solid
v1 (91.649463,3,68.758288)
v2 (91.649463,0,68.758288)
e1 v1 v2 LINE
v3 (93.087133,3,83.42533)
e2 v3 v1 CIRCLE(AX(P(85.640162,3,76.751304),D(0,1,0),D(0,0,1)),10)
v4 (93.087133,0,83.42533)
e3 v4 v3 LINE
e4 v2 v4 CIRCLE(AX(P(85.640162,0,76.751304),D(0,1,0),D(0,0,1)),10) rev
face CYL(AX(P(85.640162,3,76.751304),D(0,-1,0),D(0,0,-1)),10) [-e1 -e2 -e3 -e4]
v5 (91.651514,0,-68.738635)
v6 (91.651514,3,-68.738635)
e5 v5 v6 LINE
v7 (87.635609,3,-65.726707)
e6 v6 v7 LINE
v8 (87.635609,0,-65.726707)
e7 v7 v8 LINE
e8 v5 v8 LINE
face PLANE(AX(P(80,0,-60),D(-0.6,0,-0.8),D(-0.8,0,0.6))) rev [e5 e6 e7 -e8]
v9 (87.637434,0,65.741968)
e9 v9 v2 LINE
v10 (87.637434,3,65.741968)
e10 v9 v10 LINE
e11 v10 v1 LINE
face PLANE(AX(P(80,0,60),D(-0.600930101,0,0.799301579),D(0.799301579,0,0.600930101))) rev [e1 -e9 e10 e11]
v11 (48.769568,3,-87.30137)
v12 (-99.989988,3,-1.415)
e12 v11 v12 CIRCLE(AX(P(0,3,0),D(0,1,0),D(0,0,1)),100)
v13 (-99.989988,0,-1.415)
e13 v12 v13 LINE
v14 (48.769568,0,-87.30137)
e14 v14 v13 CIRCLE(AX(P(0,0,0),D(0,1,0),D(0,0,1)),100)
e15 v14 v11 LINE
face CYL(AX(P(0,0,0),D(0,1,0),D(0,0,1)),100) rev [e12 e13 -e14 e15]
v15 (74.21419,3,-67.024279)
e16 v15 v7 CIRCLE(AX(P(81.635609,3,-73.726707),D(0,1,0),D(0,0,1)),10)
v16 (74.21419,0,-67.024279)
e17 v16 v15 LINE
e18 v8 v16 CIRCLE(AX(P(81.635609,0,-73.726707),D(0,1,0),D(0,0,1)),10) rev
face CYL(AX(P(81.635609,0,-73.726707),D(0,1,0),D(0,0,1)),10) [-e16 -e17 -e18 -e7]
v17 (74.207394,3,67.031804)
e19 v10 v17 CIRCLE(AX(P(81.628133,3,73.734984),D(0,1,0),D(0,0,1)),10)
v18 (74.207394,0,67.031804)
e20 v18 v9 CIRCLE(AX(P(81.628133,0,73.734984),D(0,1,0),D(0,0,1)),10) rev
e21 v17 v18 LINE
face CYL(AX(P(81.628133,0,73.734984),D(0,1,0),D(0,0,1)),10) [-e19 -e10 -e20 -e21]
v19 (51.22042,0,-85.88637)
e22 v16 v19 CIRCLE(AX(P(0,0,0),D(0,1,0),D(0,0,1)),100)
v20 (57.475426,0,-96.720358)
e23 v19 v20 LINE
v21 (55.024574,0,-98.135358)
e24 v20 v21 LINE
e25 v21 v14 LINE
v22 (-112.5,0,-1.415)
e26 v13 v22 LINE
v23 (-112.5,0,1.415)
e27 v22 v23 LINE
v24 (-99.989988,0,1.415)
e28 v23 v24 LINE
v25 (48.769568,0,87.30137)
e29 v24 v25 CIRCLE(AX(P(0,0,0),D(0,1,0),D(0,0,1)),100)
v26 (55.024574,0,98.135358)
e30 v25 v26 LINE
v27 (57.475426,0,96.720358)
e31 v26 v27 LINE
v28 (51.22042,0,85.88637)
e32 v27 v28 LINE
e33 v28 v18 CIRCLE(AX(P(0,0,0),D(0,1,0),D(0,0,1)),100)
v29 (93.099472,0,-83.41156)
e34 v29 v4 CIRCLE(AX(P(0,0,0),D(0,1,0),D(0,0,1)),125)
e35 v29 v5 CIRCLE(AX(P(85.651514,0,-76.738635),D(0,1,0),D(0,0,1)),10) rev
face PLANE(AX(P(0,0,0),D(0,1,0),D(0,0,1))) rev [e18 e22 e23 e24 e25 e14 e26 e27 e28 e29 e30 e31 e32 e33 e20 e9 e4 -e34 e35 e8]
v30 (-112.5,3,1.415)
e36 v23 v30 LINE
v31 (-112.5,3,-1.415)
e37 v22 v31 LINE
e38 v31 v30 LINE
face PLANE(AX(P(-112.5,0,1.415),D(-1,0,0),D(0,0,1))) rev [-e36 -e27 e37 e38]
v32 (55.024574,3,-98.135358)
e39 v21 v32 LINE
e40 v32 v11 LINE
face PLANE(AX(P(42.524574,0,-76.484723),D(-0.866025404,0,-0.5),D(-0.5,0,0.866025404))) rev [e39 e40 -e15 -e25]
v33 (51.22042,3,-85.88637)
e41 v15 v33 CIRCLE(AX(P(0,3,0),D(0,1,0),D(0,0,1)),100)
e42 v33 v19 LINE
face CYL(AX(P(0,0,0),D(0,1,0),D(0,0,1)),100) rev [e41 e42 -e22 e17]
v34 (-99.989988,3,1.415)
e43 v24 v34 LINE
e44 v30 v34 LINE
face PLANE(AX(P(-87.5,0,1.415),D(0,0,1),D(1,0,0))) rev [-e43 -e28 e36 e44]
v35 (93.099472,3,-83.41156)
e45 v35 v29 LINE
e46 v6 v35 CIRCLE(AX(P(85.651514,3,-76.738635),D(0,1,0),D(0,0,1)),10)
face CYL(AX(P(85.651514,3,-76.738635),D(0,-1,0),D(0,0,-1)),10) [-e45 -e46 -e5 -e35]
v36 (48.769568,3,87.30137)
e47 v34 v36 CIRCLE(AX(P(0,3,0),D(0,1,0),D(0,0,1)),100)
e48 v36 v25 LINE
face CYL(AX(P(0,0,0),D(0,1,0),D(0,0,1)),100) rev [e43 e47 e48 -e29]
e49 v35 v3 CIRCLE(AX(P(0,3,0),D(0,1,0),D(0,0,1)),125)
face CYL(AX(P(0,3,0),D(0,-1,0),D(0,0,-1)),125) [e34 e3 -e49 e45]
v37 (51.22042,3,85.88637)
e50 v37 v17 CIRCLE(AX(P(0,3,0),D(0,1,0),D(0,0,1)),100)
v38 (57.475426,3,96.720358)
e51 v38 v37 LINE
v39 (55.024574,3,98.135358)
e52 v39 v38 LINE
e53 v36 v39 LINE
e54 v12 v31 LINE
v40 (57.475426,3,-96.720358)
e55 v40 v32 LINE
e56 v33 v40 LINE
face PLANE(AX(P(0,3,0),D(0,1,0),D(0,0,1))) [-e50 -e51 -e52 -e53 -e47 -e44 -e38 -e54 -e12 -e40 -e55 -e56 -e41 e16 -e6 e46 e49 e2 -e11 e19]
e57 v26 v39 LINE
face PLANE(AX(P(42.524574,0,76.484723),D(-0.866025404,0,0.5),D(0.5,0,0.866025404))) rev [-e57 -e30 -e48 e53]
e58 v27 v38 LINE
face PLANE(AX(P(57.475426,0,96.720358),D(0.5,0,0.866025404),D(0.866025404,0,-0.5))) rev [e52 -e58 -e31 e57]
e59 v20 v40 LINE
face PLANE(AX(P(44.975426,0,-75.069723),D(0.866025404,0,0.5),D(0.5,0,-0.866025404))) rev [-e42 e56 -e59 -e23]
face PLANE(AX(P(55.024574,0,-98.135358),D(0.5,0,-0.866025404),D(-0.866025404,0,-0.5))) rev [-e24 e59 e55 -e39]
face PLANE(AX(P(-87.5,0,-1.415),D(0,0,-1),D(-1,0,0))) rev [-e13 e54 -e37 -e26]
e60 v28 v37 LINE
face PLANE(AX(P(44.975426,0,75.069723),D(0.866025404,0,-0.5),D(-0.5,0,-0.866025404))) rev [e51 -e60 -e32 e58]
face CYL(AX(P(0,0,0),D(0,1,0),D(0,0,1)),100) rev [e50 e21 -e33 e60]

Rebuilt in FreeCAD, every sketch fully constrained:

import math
import FreeCAD as App
import Part
import Sketcher

V = App.Vector
Q = App.Units.Quantity


def edges_at(feature, points):
    """Names of the edges that pass closest to the given points."""
    edges = feature.Shape.Edges
    near = lambda p: min(range(len(edges)), key=lambda i: edges[i].distToShape(Part.Vertex(*p))[0])
    return sorted({f"Edge{near(p) + 1}" for p in points})


def add_polygon(sketch, points):
    """Adds a closed chain of lines whose ends are joined by coincident constraints."""
    first, n = sketch.GeometryCount, len(points)
    for a, b in zip(points, points[1:] + points[:1]):
        sketch.addGeometry(Part.LineSegment(App.Vector(*a, 0), App.Vector(*b, 0)), False)
    for i in range(n):
        sketch.addConstraint(Sketcher.Constraint("Coincident", first + i, 2, first + (i + 1) % n, 1))

doc = App.newDocument("Part")
params = doc.addObject("Spreadsheet::Sheet", "Params")
for row, (alias, value) in enumerate([
    ("sketch1_diameter", "250 mm"),
    ("pad1_length", "3 mm"),
    ("sketch2_diameter", "200 mm"),
    ("pocket1_length", "3 mm"),
    ("sketch3_width", "25 mm"),
    ("sketch3_height", "2.83 mm"),
    ("pocket2_length", "3 mm"),
    ("sketch4_radius", "125 mm"),
    ("sketch4_radius2", "100 mm"),
    ("pocket3_length", "3 mm"),
    ("fillet_radius", "10 mm"),
], start=1):
    params.set(f"A{row}", alias)
    params.set(f"B{row}", "=" + value)
    params.setAlias(f"B{row}", alias)

body = doc.addObject("PartDesign::Body", "Body")

# Sketch on XZ plane
sketch1 = doc.addObject("Sketcher::SketchObject", "Sketch")
body.addObject(sketch1)
sketch1.AttachmentSupport = (doc.XZ_Plane, [""])
sketch1.MapMode = "FlatFace"
sketch1.addGeometry(Part.Circle(V(0, 0, 0), V(0, 0, 1), 125), False)
sketch1.addConstraint([
    Sketcher.Constraint("Coincident", 0, 3, -1, 1),
    Sketcher.Constraint("Diameter", 0, Q("250 mm")),
])
sketch1.setExpression("Constraints[1]", "Params.sketch1_diameter")
pad1 = doc.addObject("PartDesign::Pad", "Pad")
body.addObject(pad1)
pad1.Profile = sketch1
pad1.setExpression("Length", "Params.pad1_length")
pad1.Reversed = True

# Sketch on XZ plane
sketch2 = doc.addObject("Sketcher::SketchObject", "Sketch001")
body.addObject(sketch2)
sketch2.AttachmentSupport = (doc.XZ_Plane, [""])
sketch2.MapMode = "FlatFace"
sketch2.AttachmentOffset = App.Placement(V(0, 0, -3), App.Rotation())
sketch2.addGeometry(Part.Circle(V(0, 0, 0), V(0, 0, 1), 100), False)
sketch2.addConstraint([
    Sketcher.Constraint("Coincident", 0, 3, -1, 1),
    Sketcher.Constraint("Diameter", 0, Q("200 mm")),
])
sketch2.setExpression("Constraints[1]", "Params.sketch2_diameter")
pocket1 = doc.addObject("PartDesign::Pocket", "Pocket")
body.addObject(pocket1)
pocket1.Profile = sketch2
pocket1.setExpression("Length", "Params.pocket1_length")
pocket1.Reversed = True

# Sketch on XZ plane
sketch3 = doc.addObject("Sketcher::SketchObject", "Sketch002")
body.addObject(sketch3)
sketch3.AttachmentSupport = (doc.XZ_Plane, [""])
sketch3.MapMode = "FlatFace"
sketch3.AttachmentOffset = App.Placement(V(0, 0, -3), App.Rotation())
add_polygon(sketch3, [(-112.5, -1.415), (-112.5, 1.415), (-87.5, 1.415), (-87.5, -1.415)])  # lines 0-3
sketch3.addConstraint([
    Sketcher.Constraint("Vertical", 0),
    Sketcher.Constraint("Horizontal", 1),
    Sketcher.Constraint("Vertical", 2),
    Sketcher.Constraint("Horizontal", 3),
    Sketcher.Constraint("DistanceX", 1, 1, 1, 2, Q("25 mm")),
    Sketcher.Constraint("DistanceY", 0, 1, 0, 2, Q("2.83 mm")),
    Sketcher.Constraint("DistanceX", 0, 2, -1, 1, Q("112.5 mm")),
    Sketcher.Constraint("DistanceY", -1, 1, 0, 2, Q("1.415 mm")),
])
sketch3.setExpression("Constraints[8]", "Params.sketch3_width")
sketch3.setExpression("Constraints[9]", "Params.sketch3_height")
pocket2 = doc.addObject("PartDesign::Pocket", "Pocket001")
body.addObject(pocket2)
pocket2.Profile = sketch3
pocket2.setExpression("Length", "Params.pocket2_length")
pocket2.Reversed = True
doc.recompute()

polarpattern = doc.addObject("PartDesign::PolarPattern", "PolarPattern")
body.addObject(polarpattern)
polarpattern.Originals = [pocket2]
polarpattern.Axis = (doc.Y_Axis, [""])
polarpattern.Angle = 360
polarpattern.Occurrences = 3
body.Tip = polarpattern

# Sketch on XZ plane
sketch4 = doc.addObject("Sketcher::SketchObject", "Sketch003")
body.addObject(sketch4)
sketch4.AttachmentSupport = (doc.XZ_Plane, [""])
sketch4.MapMode = "FlatFace"
sketch4.AttachmentOffset = App.Placement(V(0, 0, -3), App.Rotation())
sketch4.addGeometry([
    Part.LineSegment(V(80, 60, 0), V(99.98255, 75.023261, 0)),
    Part.ArcOfCircle(Part.Circle(V(0, 0, 0), V(0, 0, 1), 125), math.radians(-36.869898), math.radians(36.883226)),
    Part.LineSegment(V(100, -75, 0), V(80, -60, 0)),
    Part.ArcOfCircle(Part.Circle(V(0, 0, 0), V(0, 0, 1), 100), math.radians(-36.869898), math.radians(36.869898)),
], False)
sketch4.addConstraint([
    Sketcher.Constraint("Coincident", 0, 2, 1, 2),
    Sketcher.Constraint("Coincident", 1, 1, 2, 1),
    Sketcher.Constraint("Coincident", 2, 2, 3, 1),
    Sketcher.Constraint("Coincident", 3, 2, 0, 1),
    Sketcher.Constraint("Coincident", 1, 3, -1, 1),
    Sketcher.Constraint("Coincident", 3, 3, -1, 1),
    Sketcher.Constraint("Vertical", 2, 2, 3, 2),
    Sketcher.Constraint("Radius", 1, Q("125 mm")),
    Sketcher.Constraint("Radius", 3, Q("100 mm")),
    Sketcher.Constraint("DistanceX", -1, 1, 1, 1, Q("100 mm")),
    Sketcher.Constraint("DistanceX", -1, 1, 2, 2, Q("80 mm")),
    Sketcher.Constraint("DistanceX", -1, 1, 0, 2, Q("99.98255 mm")),
])
sketch4.setExpression("Constraints[7]", "Params.sketch4_radius")
sketch4.setExpression("Constraints[8]", "Params.sketch4_radius2")
pocket3 = doc.addObject("PartDesign::Pocket", "Pocket002")
body.addObject(pocket3)
pocket3.Profile = sketch4
pocket3.setExpression("Length", "Params.pocket3_length")
pocket3.Reversed = True
doc.recompute()

fillet = doc.addObject("PartDesign::Fillet", "Fillet")
body.addObject(fillet)
fillet.Base = (pocket3, edges_at(pocket3, [
    (80, 1.5, 60),
    (80, 1.5, -60),
    (100, 1.5, -75),
    (99.983, 1.5, 75.023),
]))
fillet.setExpression("Radius", "Params.fillet_radius")

doc.recompute()
